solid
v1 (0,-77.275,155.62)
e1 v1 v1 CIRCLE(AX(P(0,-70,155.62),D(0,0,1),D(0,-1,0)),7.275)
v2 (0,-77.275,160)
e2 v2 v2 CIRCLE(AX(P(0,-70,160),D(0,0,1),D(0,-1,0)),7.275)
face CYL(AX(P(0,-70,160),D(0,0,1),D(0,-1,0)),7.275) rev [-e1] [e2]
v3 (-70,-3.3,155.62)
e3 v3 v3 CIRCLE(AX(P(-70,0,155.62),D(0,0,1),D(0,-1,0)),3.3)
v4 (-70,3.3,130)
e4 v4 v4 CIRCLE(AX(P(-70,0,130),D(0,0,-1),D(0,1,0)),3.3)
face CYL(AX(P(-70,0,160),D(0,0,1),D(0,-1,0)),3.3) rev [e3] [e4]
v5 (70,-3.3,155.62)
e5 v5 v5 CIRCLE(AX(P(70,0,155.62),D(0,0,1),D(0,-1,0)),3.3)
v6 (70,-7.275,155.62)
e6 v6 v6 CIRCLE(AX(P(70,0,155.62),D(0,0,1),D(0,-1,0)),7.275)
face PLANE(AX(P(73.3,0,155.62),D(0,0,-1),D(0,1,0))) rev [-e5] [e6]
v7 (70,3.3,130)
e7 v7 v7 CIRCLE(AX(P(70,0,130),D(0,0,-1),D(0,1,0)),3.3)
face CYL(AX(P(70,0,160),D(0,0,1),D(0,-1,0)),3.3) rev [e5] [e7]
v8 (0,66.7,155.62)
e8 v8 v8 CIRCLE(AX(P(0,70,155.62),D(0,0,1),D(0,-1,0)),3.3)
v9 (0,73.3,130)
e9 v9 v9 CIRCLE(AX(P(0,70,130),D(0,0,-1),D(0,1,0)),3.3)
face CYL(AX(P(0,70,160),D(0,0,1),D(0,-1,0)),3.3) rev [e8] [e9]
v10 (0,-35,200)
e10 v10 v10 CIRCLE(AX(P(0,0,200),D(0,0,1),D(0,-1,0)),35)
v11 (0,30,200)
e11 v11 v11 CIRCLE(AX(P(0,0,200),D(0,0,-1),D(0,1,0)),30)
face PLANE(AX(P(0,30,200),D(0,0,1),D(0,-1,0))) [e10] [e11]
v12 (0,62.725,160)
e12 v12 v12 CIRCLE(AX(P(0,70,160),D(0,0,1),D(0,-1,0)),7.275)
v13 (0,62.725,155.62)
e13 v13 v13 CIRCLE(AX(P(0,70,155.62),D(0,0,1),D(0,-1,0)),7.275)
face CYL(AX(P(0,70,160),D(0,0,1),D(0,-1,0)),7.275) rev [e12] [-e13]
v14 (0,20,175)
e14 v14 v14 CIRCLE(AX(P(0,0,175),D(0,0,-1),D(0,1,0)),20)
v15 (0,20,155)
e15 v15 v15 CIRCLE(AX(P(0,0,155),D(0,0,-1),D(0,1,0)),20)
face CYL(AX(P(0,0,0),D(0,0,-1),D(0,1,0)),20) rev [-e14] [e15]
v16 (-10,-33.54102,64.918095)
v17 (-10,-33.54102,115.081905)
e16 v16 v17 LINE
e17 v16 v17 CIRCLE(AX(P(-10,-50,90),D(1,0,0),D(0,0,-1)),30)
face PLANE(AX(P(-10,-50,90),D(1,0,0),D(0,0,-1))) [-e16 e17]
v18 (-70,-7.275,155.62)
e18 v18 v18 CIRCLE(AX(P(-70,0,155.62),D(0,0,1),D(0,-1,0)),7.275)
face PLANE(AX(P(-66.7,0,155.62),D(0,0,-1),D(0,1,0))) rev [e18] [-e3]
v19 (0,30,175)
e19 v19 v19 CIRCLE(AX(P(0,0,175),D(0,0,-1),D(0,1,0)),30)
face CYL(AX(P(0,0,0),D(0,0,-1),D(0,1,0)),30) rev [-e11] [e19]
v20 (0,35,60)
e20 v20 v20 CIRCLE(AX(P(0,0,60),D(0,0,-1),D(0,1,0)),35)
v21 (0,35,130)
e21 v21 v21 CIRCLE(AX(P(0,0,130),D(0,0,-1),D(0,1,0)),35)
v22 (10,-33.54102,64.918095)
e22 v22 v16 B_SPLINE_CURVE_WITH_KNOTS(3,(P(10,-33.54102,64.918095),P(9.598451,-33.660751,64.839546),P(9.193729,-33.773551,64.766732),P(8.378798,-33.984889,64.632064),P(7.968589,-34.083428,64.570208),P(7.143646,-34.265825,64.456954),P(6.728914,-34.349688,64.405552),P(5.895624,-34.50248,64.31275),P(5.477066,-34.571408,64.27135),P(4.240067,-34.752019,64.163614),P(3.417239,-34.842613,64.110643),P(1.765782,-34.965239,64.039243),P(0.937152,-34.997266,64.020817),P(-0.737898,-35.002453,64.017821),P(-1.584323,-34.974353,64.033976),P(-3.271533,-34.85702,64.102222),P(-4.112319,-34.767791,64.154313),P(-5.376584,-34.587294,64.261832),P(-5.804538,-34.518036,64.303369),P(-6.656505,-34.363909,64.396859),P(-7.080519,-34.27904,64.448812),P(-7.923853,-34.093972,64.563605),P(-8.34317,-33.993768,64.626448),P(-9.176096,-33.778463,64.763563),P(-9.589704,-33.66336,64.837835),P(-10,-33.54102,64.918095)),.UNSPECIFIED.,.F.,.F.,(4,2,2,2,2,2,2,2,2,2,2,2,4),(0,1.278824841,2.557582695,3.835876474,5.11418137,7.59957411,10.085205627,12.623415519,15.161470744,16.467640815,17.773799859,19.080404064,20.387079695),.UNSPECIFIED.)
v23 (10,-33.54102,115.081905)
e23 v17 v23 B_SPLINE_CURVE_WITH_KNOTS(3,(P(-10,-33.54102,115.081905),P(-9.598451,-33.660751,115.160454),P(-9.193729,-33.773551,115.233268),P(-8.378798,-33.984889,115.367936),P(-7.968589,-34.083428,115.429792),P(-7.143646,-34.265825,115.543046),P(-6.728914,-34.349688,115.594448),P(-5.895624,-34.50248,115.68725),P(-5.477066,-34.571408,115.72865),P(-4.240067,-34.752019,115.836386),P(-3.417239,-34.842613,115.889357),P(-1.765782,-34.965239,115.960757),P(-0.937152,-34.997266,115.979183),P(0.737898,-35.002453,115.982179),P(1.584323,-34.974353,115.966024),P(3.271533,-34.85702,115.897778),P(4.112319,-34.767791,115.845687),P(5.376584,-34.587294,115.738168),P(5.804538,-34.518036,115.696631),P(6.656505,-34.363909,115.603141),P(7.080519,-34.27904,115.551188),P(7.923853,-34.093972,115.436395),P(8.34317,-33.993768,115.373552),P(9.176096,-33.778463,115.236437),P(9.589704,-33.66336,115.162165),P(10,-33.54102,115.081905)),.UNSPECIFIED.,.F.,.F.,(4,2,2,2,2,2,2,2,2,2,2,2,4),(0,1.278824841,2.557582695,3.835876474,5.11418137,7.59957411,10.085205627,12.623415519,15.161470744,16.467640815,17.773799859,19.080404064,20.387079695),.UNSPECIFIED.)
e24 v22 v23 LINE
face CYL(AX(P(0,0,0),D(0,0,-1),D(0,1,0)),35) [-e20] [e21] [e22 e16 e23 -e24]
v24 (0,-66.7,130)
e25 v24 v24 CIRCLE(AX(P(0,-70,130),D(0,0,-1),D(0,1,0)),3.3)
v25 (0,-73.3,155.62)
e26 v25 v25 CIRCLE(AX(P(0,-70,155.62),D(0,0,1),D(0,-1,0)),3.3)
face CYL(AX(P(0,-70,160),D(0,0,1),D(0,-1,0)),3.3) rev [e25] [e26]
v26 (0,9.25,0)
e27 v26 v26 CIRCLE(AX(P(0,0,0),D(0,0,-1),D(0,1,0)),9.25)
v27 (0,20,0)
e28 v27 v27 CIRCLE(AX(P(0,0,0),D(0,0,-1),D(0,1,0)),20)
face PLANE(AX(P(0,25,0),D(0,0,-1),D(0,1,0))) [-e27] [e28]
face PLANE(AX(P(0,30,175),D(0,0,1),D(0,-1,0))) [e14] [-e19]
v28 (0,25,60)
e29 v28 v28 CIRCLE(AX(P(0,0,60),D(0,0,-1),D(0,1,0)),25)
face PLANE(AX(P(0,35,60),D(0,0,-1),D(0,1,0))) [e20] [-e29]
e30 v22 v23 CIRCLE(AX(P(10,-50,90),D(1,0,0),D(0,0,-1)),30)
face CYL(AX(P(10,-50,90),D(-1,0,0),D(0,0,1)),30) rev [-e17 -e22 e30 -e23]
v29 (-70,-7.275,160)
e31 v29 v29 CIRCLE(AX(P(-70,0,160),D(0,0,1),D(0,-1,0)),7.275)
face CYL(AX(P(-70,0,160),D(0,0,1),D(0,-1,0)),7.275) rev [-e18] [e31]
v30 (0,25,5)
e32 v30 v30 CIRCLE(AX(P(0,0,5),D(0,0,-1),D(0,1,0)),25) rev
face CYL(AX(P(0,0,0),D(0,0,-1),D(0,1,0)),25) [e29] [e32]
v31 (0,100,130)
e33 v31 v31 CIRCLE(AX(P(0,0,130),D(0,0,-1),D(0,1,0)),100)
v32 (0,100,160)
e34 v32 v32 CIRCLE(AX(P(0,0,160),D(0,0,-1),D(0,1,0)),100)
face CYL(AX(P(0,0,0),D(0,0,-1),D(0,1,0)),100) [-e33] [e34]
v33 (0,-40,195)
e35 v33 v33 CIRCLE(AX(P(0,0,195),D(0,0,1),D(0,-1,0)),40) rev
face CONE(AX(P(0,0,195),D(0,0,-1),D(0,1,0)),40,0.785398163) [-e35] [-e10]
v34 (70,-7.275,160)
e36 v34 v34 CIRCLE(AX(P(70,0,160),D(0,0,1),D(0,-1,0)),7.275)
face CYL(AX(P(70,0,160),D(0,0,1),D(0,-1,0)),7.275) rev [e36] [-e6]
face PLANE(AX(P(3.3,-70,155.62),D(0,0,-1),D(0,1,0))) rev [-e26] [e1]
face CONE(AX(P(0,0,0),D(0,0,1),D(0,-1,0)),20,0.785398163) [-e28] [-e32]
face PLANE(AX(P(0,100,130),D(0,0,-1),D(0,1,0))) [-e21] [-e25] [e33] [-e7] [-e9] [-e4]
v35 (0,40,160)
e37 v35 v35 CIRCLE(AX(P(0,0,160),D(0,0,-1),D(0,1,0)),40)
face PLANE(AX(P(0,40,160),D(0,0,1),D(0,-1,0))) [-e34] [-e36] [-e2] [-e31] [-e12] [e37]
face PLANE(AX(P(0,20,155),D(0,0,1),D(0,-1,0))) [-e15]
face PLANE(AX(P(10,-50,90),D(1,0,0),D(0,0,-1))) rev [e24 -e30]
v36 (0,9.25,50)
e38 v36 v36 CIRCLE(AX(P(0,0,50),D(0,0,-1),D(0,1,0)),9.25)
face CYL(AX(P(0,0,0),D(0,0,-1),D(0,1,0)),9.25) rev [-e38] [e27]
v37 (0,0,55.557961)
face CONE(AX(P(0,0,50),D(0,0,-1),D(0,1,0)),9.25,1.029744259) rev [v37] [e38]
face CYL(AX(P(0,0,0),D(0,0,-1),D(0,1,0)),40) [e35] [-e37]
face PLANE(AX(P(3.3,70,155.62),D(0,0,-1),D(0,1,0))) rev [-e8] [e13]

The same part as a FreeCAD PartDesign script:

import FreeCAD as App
import Part
import Sketcher

V = App.Vector
Q = App.Units.Quantity


def edges_at(feature, points):
    """Names of the edges that pass closest to the given points."""
    edges = feature.Shape.Edges
    near = lambda p: min(range(len(edges)), key=lambda i: edges[i].distToShape(Part.Vertex(*p))[0])
    return sorted({f"Edge{near(p) + 1}" for p in points})

doc = App.newDocument("Part")
params = doc.addObject("Spreadsheet::Sheet", "Params")
for row, (alias, value) in enumerate([
    ("sketch1_width", "10 mm"),
    ("sketch1_width2", "20 mm"),
    ("sketch1_width3", "25 mm"),
    ("sketch1_width4", "65 mm"),
    ("sketch1_height", "155 mm"),
    ("revolution_angle", "360 deg"),
    ("sketch2_diameter", "60 mm"),
    ("pocket1_length", "10 mm"),
    ("pocket1_length2", "10 mm"),
    ("sketch3_diameter", "6.6 mm"),
    ("hole_diameter", "6.6 mm"),
    ("hole_cbore_diameter", "14.55 mm"),
    ("hole_cbore_depth", "4.38 mm"),
    ("chamfer_size", "5 mm"),
    ("sketch4_diameter", "18.5 mm"),
    ("hole2_diameter", "18.5 mm"),
    ("hole2_depth", "50 mm"),
], start=1):
    params.set(f"A{row}", alias)
    params.set(f"B{row}", "=" + value)
    params.setAlias(f"B{row}", alias)

body = doc.addObject("PartDesign::Body", "Body")

# Sketch on YZ plane
sketch1 = body.newObject("Sketcher::SketchObject", "Sketch")
sketch1.AttachmentSupport = (doc.getObject("YZ_Plane"), [""])
sketch1.MapMode = "FlatFace"
sketch1.addGeometry([
    Part.LineSegment(V(40, 200, 0), V(30, 200, 0)),  # 0
    Part.LineSegment(V(30, 200, 0), V(30, 175, 0)),  # 1
    Part.LineSegment(V(30, 175, 0), V(20, 175, 0)),  # 2
    Part.LineSegment(V(20, 175, 0), V(20, 155, 0)),  # 3
    Part.LineSegment(V(20, 155, 0), V(0, 155, 0)),  # 4
    Part.LineSegment(V(0, 155, 0), V(0, 0, 0)),  # 5
    Part.LineSegment(V(0, 0, 0), V(25, 0, 0)),  # 6
    Part.LineSegment(V(25, 0, 0), V(25, 60, 0)),  # 7
    Part.LineSegment(V(25, 60, 0), V(35, 60, 0)),  # 8
    Part.LineSegment(V(35, 60, 0), V(35, 130, 0)),  # 9
    Part.LineSegment(V(35, 130, 0), V(100, 130, 0)),  # 10
    Part.LineSegment(V(100, 130, 0), V(100, 160, 0)),  # 11
    Part.LineSegment(V(100, 160, 0), V(40, 160, 0)),  # 12
    Part.LineSegment(V(40, 160, 0), V(40, 200, 0)),  # 13
], False)
sketch1.addConstraint([
    Sketcher.Constraint("Coincident", 0, 2, 1, 1),
    Sketcher.Constraint("Coincident", 1, 2, 2, 1),
    Sketcher.Constraint("Coincident", 2, 2, 3, 1),
    Sketcher.Constraint("Coincident", 3, 2, 4, 1),
    Sketcher.Constraint("Coincident", 4, 2, 5, 1),
    Sketcher.Constraint("Coincident", 5, 2, 6, 1),
    Sketcher.Constraint("Coincident", 6, 2, 7, 1),
    Sketcher.Constraint("Coincident", 7, 2, 8, 1),
    Sketcher.Constraint("Coincident", 8, 2, 9, 1),
    Sketcher.Constraint("Coincident", 9, 2, 10, 1),
    Sketcher.Constraint("Coincident", 10, 2, 11, 1),
    Sketcher.Constraint("Coincident", 11, 2, 12, 1),
    Sketcher.Constraint("Coincident", 12, 2, 13, 1),
    Sketcher.Constraint("Coincident", 13, 2, 0, 1),
    Sketcher.Constraint("Horizontal", 0),
    Sketcher.Constraint("Vertical", 1),
    Sketcher.Constraint("Horizontal", 2),
    Sketcher.Constraint("Vertical", 3),
    Sketcher.Constraint("Horizontal", 4),
    Sketcher.Constraint("Vertical", 5),
    Sketcher.Constraint("Horizontal", 6),
    Sketcher.Constraint("Vertical", 7),
    Sketcher.Constraint("Horizontal", 8),
    Sketcher.Constraint("Vertical", 9),
    Sketcher.Constraint("Horizontal", 10),
    Sketcher.Constraint("Vertical", 11),
    Sketcher.Constraint("Horizontal", 12),
    Sketcher.Constraint("Vertical", 13),
    Sketcher.Constraint("Coincident", 5, 2, -1, 1),
    Sketcher.Constraint("Equal", 0, 2),
    Sketcher.Constraint("Equal", 2, 8),
    Sketcher.Constraint("Equal", 6, 1),
    Sketcher.Constraint("Equal", 4, 3),
    Sketcher.Constraint("Equal", 12, 7),
    Sketcher.Constraint("DistanceX", 0, 2, 0, 1, Q("10 mm")),
    Sketcher.Constraint("DistanceX", 4, 2, 4, 1, Q("20 mm")),
    Sketcher.Constraint("DistanceX", 6, 1, 6, 2, Q("25 mm")),
    Sketcher.Constraint("DistanceX", 10, 1, 10, 2, Q("65 mm")),
    Sketcher.Constraint("DistanceY", 5, 2, 5, 1, Q("155 mm")),
    Sketcher.Constraint("DistanceY", 9, 1, 9, 2, Q("70 mm")),
    Sketcher.Constraint("DistanceY", 11, 1, 11, 2, Q("30 mm")),
])
sketch1.setExpression("Constraints[34]", "Params.sketch1_width")
sketch1.setExpression("Constraints[35]", "Params.sketch1_width2")
sketch1.setExpression("Constraints[36]", "Params.sketch1_width3")
sketch1.setExpression("Constraints[37]", "Params.sketch1_width4")
sketch1.setExpression("Constraints[38]", "Params.sketch1_height")
revolution = body.newObject("PartDesign::Revolution", "Revolution")
revolution.Profile = sketch1
revolution.ReferenceAxis = (sketch1, ["V_Axis"])
revolution.setExpression("Angle", "Params.revolution_angle")

# Sketch on YZ plane
sketch2 = body.newObject("Sketcher::SketchObject", "Sketch001")
sketch2.AttachmentSupport = (doc.getObject("YZ_Plane"), [""])
sketch2.MapMode = "FlatFace"
sketch2.addGeometry(Part.Circle(V(-50, 90, 0), V(0, 0, 1), 30), False)
sketch2.addConstraint([
    Sketcher.Constraint("Diameter", 0, Q("60 mm")),
    Sketcher.Constraint("DistanceX", 0, 3, -1, 1, Q("50 mm")),
    Sketcher.Constraint("DistanceY", -1, 1, 0, 3, Q("90 mm")),
])
sketch2.setExpression("Constraints[0]", "Params.sketch2_diameter")
pocket1 = body.newObject("PartDesign::Pocket", "Pocket")
pocket1.Profile = sketch2
pocket1.Type = "TwoLengths"
pocket1.setExpression("Length", "Params.pocket1_length")
pocket1.setExpression("Length2", "Params.pocket1_length2")
pocket1.Reversed = True

# Sketch on XY plane
sketch3 = body.newObject("Sketcher::SketchObject", "Sketch002")
sketch3.AttachmentSupport = (doc.getObject("XY_Plane"), [""])
sketch3.MapMode = "FlatFace"
sketch3.AttachmentOffset = App.Placement(V(0, 0, 160), App.Rotation())
sketch3.addGeometry([
    Part.Circle(V(0, 70, 0), V(0, 0, 1), 3.3),
    Part.Circle(V(70, 0, 0), V(0, 0, 1), 3.3),
    Part.Circle(V(0, -70, 0), V(0, 0, 1), 3.3),
    Part.Circle(V(-70, 0, 0), V(0, 0, 1), 3.3),
], False)
sketch3.addConstraint([
    Sketcher.Constraint("Equal", 0, 1),
    Sketcher.Constraint("Equal", 1, 2),
    Sketcher.Constraint("Equal", 2, 3),
    Sketcher.Constraint("Symmetric", 0, 3, 2, 3, -1, 1),
    Sketcher.Constraint("Symmetric", 1, 3, 3, 3, -1, 1),
    Sketcher.Constraint("PointOnObject", 0, 3, -2),
    Sketcher.Constraint("PointOnObject", 1, 3, -1),
    Sketcher.Constraint("Diameter", 0, Q("6.6 mm")),
    Sketcher.Constraint("DistanceY", -1, 1, 0, 3, Q("70 mm")),
    Sketcher.Constraint("DistanceX", -1, 1, 1, 3, Q("70 mm")),
])
sketch3.setExpression("Constraints[7]", "Params.sketch3_diameter")
doc.recompute()
hole = body.newObject("PartDesign::Hole", "Hole")
hole.Profile = sketch3
hole.ThreadType = "None"
hole.setExpression("Diameter", "Params.hole_diameter")
hole.DepthType = "ThroughAll"
hole.HoleCutType = "Counterbore"
hole.setExpression("HoleCutDiameter", "Params.hole_cbore_diameter")
hole.setExpression("HoleCutDepth", "Params.hole_cbore_depth")
doc.recompute()

chamfer = body.newObject("PartDesign::Chamfer", "Chamfer")
chamfer.Base = (hole, edges_at(hole, [(0, -40, 200), (0, -25, 0)]))
chamfer.setExpression("Size", "Params.chamfer_size")

# Sketch on XY plane
sketch4 = body.newObject("Sketcher::SketchObject", "Sketch003")
sketch4.AttachmentSupport = (doc.getObject("XY_Plane"), [""])
sketch4.MapMode = "FlatFace"
sketch4.addGeometry(Part.Circle(V(0, 0, 0), V(0, 0, 1), 9), False)
sketch4.addConstraint([
    Sketcher.Constraint("Coincident", 0, 3, -1, 1),
    Sketcher.Constraint("Diameter", 0, Q("18.5 mm")),
])
sketch4.setExpression("Constraints[1]", "Params.sketch4_diameter")
doc.recompute()
hole2 = body.newObject("PartDesign::Hole", "Hole001")
hole2.Profile = sketch4
hole2.ThreadType = "None"
hole2.setExpression("Diameter", "Params.hole2_diameter")
hole2.DepthType = "Dimension"
hole2.setExpression("Depth", "Params.hole2_depth")
hole2.DrillPoint = "Angled"
hole2.DrillPointAngle = 118
hole2.Reversed = True

doc.recompute()
